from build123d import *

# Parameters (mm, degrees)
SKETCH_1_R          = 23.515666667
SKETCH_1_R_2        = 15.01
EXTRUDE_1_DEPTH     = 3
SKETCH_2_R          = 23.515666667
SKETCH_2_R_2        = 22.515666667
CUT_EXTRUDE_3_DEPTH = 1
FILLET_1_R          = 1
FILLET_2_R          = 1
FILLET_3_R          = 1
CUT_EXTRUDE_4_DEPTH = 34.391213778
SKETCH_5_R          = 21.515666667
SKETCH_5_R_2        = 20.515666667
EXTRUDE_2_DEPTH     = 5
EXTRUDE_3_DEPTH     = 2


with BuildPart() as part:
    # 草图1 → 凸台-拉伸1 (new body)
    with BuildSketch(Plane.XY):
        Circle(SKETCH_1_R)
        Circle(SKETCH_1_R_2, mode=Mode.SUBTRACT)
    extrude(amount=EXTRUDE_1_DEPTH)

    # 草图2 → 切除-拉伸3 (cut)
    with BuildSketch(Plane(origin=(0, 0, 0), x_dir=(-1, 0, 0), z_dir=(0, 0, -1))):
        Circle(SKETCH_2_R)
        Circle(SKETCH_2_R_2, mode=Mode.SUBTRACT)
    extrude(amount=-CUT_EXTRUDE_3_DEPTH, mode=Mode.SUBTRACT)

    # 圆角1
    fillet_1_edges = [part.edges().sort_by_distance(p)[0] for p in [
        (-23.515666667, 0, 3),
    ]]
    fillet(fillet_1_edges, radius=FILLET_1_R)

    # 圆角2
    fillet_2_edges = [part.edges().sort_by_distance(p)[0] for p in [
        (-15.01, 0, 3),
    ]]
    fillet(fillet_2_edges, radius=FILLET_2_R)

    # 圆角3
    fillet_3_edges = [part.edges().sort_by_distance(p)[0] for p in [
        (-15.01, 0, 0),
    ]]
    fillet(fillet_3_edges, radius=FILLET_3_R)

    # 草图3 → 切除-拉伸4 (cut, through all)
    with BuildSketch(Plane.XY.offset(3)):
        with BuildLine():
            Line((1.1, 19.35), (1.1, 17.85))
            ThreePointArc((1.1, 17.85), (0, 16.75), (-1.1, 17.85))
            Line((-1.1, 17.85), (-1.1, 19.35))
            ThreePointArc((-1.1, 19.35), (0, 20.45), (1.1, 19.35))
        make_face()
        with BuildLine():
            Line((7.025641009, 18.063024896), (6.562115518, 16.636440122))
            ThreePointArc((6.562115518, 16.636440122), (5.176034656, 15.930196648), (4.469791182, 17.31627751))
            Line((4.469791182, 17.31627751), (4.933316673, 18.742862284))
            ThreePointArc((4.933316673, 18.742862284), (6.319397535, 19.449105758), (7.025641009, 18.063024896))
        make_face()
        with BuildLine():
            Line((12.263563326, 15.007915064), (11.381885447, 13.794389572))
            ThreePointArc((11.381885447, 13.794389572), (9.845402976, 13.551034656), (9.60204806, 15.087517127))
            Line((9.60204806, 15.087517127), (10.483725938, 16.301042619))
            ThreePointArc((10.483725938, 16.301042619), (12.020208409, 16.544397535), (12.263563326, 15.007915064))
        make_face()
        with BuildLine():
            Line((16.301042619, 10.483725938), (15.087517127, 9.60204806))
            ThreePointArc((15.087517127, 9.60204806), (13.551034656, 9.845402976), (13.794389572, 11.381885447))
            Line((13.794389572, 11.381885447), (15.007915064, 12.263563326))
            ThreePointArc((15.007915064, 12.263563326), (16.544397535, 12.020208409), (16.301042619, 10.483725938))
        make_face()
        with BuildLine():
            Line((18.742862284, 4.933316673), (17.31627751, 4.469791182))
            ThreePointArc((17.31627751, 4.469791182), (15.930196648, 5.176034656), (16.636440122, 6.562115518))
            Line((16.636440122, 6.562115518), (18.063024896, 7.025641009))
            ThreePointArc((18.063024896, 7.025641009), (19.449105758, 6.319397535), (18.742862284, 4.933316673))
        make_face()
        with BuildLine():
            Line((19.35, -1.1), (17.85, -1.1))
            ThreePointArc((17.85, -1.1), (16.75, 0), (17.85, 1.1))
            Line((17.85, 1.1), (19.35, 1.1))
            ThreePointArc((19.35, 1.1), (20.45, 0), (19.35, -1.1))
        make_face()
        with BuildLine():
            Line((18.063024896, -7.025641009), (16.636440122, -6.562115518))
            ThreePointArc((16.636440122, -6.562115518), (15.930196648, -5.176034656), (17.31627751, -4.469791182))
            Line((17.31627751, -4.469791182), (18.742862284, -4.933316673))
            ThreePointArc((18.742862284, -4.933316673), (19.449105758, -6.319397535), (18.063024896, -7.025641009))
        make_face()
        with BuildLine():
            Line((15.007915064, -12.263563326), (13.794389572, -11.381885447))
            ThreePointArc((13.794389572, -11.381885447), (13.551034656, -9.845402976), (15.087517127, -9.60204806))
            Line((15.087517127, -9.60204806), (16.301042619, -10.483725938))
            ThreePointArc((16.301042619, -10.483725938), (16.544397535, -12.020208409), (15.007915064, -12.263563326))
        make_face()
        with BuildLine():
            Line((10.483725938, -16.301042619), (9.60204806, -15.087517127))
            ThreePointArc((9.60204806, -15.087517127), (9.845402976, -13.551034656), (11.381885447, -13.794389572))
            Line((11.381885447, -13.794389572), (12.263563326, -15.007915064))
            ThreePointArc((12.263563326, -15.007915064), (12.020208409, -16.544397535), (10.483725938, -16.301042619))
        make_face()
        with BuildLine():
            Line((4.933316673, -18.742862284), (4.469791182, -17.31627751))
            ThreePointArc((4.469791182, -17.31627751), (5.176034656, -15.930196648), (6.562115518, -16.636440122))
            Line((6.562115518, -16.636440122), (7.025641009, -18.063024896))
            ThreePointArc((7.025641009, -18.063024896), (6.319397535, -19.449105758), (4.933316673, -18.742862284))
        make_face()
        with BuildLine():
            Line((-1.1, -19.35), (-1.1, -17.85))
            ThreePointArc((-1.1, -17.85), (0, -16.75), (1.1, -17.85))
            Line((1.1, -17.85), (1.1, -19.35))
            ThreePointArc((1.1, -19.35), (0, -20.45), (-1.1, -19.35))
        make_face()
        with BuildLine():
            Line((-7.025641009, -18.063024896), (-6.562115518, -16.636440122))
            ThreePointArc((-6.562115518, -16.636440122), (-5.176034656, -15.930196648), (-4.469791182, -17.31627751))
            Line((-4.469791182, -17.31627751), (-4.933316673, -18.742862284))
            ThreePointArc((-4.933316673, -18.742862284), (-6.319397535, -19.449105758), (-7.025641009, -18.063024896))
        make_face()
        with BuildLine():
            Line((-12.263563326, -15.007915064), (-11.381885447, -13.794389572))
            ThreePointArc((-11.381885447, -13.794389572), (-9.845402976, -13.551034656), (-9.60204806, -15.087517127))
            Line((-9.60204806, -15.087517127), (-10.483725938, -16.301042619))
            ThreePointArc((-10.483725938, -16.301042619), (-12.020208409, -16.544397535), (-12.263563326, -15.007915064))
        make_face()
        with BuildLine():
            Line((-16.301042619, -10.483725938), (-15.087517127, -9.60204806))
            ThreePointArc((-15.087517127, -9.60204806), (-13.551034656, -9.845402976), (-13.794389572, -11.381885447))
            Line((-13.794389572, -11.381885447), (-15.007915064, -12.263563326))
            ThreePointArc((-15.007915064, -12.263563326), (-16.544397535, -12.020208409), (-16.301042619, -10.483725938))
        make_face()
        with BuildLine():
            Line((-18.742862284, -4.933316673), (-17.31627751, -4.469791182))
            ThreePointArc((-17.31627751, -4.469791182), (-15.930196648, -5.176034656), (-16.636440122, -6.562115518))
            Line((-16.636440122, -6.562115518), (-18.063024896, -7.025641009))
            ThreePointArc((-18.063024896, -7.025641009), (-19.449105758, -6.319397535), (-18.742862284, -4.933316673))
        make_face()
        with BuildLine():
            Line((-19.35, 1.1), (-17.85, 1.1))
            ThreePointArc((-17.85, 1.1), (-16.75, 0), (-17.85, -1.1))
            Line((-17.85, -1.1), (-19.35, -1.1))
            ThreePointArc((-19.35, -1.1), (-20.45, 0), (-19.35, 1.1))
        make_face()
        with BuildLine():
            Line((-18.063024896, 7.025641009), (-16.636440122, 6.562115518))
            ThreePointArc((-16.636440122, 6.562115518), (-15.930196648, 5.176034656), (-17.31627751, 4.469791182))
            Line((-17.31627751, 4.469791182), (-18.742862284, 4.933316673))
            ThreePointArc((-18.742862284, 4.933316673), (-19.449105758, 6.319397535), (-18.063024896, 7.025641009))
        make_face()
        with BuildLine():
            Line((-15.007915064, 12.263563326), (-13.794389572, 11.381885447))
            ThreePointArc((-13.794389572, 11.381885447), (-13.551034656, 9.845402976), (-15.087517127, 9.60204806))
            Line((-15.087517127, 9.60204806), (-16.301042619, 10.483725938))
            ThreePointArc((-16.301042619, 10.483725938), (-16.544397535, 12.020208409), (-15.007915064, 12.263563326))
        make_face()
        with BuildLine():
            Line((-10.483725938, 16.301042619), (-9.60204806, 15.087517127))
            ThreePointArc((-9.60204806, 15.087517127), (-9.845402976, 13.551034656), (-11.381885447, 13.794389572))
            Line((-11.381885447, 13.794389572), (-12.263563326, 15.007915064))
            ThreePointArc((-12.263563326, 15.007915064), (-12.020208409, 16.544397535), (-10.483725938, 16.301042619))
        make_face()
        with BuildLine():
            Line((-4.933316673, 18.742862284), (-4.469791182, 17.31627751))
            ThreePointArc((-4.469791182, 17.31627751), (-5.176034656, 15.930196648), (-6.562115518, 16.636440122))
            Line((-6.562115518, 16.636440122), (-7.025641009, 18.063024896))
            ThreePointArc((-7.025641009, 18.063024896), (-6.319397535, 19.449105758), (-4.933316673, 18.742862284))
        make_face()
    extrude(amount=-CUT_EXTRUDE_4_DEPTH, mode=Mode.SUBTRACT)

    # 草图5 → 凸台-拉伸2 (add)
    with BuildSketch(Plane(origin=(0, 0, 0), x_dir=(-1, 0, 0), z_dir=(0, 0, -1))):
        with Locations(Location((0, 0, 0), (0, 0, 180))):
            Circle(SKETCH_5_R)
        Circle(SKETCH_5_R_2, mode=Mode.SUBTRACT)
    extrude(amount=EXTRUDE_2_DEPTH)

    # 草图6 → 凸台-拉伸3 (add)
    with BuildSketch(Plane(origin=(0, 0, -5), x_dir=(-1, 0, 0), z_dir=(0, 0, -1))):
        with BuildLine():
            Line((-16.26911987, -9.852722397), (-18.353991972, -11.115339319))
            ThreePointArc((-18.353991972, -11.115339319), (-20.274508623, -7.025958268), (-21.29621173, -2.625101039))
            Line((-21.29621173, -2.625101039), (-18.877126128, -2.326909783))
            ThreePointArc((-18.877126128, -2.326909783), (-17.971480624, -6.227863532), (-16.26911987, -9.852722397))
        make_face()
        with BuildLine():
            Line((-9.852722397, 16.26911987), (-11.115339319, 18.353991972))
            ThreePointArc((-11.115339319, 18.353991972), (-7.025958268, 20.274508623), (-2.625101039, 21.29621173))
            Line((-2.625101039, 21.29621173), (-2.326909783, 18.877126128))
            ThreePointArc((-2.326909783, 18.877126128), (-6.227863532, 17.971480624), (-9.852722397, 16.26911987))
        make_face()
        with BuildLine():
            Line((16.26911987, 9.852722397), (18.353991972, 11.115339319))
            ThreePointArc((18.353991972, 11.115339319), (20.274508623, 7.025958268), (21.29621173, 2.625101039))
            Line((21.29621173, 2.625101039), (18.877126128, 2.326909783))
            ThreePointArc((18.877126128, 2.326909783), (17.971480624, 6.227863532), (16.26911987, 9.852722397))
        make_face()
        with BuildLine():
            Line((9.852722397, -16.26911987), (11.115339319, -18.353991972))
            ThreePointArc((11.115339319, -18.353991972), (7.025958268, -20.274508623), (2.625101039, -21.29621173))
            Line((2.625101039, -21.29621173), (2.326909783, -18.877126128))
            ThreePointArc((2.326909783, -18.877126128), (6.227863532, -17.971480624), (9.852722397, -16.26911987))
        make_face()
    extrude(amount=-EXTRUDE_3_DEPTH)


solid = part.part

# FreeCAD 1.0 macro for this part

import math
import FreeCAD as App
import Part
import Sketcher

V = App.Vector
Q = App.Units.Quantity


def edges_at(feature, points):
    """Names of the edges that pass closest to the given points."""
    edges = feature.Shape.Edges
    near = lambda p: min(range(len(edges)), key=lambda i: edges[i].distToShape(Part.Vertex(*p))[0])
    return sorted({f"Edge{near(p) + 1}" for p in points})

doc = App.newDocument("Part")
params = doc.addObject("Spreadsheet::Sheet", "Params")
for row, (alias, value) in enumerate([
    ("sketch1_diameter", "30.02 mm"),
    ("pad1_length", "3 mm"),
    ("pocket1_length", "1 mm"),
    ("fillet_radius", "1 mm"),
    ("fillet2_radius", "1 mm"),
    ("fillet3_radius", "1 mm"),
    ("sketch3_radius", "1.1 mm"),
    ("sketch3_width", "1.5 mm"),
    ("sketch3_length", "1.5 mm"),
    ("pad2_length", "5 mm"),
    ("sketch5_radius", "19.02 mm"),
    ("pad3_length", "2 mm"),
], start=1):
    params.set(f"A{row}", alias)
    params.set(f"B{row}", "=" + value)
    params.setAlias(f"B{row}", alias)

body = doc.addObject("PartDesign::Body", "Body")

# Sketch on XY plane
sketch1 = body.newObject("Sketcher::SketchObject", "Sketch")
sketch1.AttachmentSupport = (doc.getObject("XY_Plane"), [""])
sketch1.MapMode = "FlatFace"
sketch1.addGeometry(Part.Circle(V(0, 0, 0), V(0, 0, 1), 23.515667), False)
sketch1.addGeometry(Part.Circle(V(0, 0, 0), V(0, 0, 1), 15.01), False)
sketch1.addConstraint(Sketcher.Constraint("Coincident", 0, 3, -1, 1))
sketch1.addConstraint(Sketcher.Constraint("Coincident", 1, 3, -1, 1))
sketch1.addConstraint(Sketcher.Constraint("Diameter", 1, 30.02))
sketch1.addConstraint(Sketcher.Constraint("Diameter", 0, 47.031333))
sketch1.setExpression("Constraints[2]", "Params.sketch1_diameter")
pad1 = body.newObject("PartDesign::Pad", "Pad")
pad1.Profile = sketch1
pad1.setExpression("Length", "Params.pad1_length")

# Sketch on XY plane
sketch2 = body.newObject("Sketcher::SketchObject", "Sketch001")
sketch2.AttachmentSupport = (doc.getObject("XY_Plane"), [""])
sketch2.MapMode = "FlatFace"
sketch2.addGeometry(Part.Circle(V(0, 0, 0), V(0, 0, 1), 23.515667), False)
sketch2.addGeometry(Part.Circle(V(0, 0, 0), V(0, 0, 1), 22.515667), False)
sketch2.addConstraint(Sketcher.Constraint("Coincident", 0, 3, -1, 1))
sketch2.addConstraint(Sketcher.Constraint("Coincident", 1, 3, -1, 1))
sketch2.addConstraint(Sketcher.Constraint("Diameter", 0, 47.031333))
sketch2.addConstraint(Sketcher.Constraint("Diameter", 1, 45.031333))
pocket1 = body.newObject("PartDesign::Pocket", "Pocket")
pocket1.Profile = sketch2
pocket1.setExpression("Length", "Params.pocket1_length")
pocket1.Reversed = True
doc.recompute()

fillet = body.newObject("PartDesign::Fillet", "Fillet")
fillet.Base = (pocket1, edges_at(pocket1, [(-23.516, 0, 3)]))
fillet.setExpression("Radius", "Params.fillet_radius")
doc.recompute()

fillet2 = body.newObject("PartDesign::Fillet", "Fillet001")
fillet2.Base = (fillet, edges_at(fillet, [(-15.01, 0, 3)]))
fillet2.setExpression("Radius", "Params.fillet2_radius")
doc.recompute()

fillet3 = body.newObject("PartDesign::Fillet", "Fillet002")
fillet3.Base = (fillet2, edges_at(fillet2, [(-15.01, 0, 0)]))
fillet3.setExpression("Radius", "Params.fillet3_radius")

# Sketch on XY plane
sketch3 = body.newObject("Sketcher::SketchObject", "Sketch002")
sketch3.AttachmentSupport = (doc.getObject("XY_Plane"), [""])
sketch3.MapMode = "FlatFace"
sketch3.AttachmentOffset = App.Placement(V(0, 0, 3), App.Rotation())
sketch3.addGeometry(Part.LineSegment(V(1.1, 17.85, 0), V(1.1, 19.35, 0)), False)
sketch3.addGeometry(Part.ArcOfCircle(Part.Circle(V(0, 19.35, 0), V(0, 0, 1), 1.1), math.radians(0), math.radians(180)), False)
sketch3.addGeometry(Part.LineSegment(V(-1.1, 19.35, 0), V(-1.1, 17.85, 0)), False)
sketch3.addGeometry(Part.ArcOfCircle(Part.Circle(V(0, 17.85, 0), V(0, 0, 1), 1.1), math.radians(180), math.radians(360)), False)
sketch3.addGeometry(Part.LineSegment(V(6.562116, 16.63644, 0), V(7.025641, 18.063025, 0)), False)
sketch3.addGeometry(Part.ArcOfCircle(Part.Circle(V(5.979479, 18.402944, 0), V(0, 0, 1), 1.1), math.radians(-18), math.radians(162)), False)
sketch3.addGeometry(Part.LineSegment(V(4.933317, 18.742862, 0), V(4.469791, 17.316278, 0)), False)
sketch3.addGeometry(Part.ArcOfCircle(Part.Circle(V(5.515953, 16.976359, 0), V(0, 0, 1), 1.1), math.radians(162), math.radians(342)), False)
sketch3.addGeometry(Part.LineSegment(V(11.381885, 13.79439, 0), V(12.263563, 15.007915, 0)), False)
sketch3.addGeometry(Part.ArcOfCircle(Part.Circle(V(11.373645, 15.654479, 0), V(0, 0, 1), 1.1), math.radians(-36), math.radians(144)), False)
sketch3.addGeometry(Part.LineSegment(V(10.483726, 16.301043, 0), V(9.602048, 15.087517, 0)), False)
sketch3.addGeometry(Part.ArcOfCircle(Part.Circle(V(10.491967, 14.440953, 0), V(0, 0, 1), 1.1), math.radians(144), math.radians(324)), False)
sketch3.addGeometry(Part.LineSegment(V(15.087517, 9.602048, 0), V(16.301043, 10.483726, 0)), False)
sketch3.addGeometry(Part.ArcOfCircle(Part.Circle(V(15.654479, 11.373645, 0), V(0, 0, 1), 1.1), math.radians(-54), math.radians(126)), False)
sketch3.addGeometry(Part.LineSegment(V(15.007915, 12.263563, 0), V(13.79439, 11.381885, 0)), False)
sketch3.addGeometry(Part.ArcOfCircle(Part.Circle(V(14.440953, 10.491967, 0), V(0, 0, 1), 1.1), math.radians(126), math.radians(306)), False)
sketch3.addGeometry(Part.LineSegment(V(17.316278, 4.469791, 0), V(18.742862, 4.933317, 0)), False)
sketch3.addGeometry(Part.ArcOfCircle(Part.Circle(V(18.402944, 5.979479, 0), V(0, 0, 1), 1.1), math.radians(-72), math.radians(108)), False)
sketch3.addGeometry(Part.LineSegment(V(18.063025, 7.025641, 0), V(16.63644, 6.562116, 0)), False)
sketch3.addGeometry(Part.ArcOfCircle(Part.Circle(V(16.976359, 5.515953, 0), V(0, 0, 1), 1.1), math.radians(108), math.radians(288)), False)
sketch3.addGeometry(Part.LineSegment(V(17.85, -1.1, 0), V(19.35, -1.1, 0)), False)
sketch3.addGeometry(Part.ArcOfCircle(Part.Circle(V(19.35, 0, 0), V(0, 0, 1), 1.1), math.radians(-90), math.radians(90)), False)
sketch3.addGeometry(Part.LineSegment(V(19.35, 1.1, 0), V(17.85, 1.1, 0)), False)
sketch3.addGeometry(Part.ArcOfCircle(Part.Circle(V(17.85, 0, 0), V(0, 0, 1), 1.1), math.radians(90), math.radians(270)), False)
sketch3.addGeometry(Part.LineSegment(V(16.63644, -6.562116, 0), V(18.063025, -7.025641, 0)), False)
sketch3.addGeometry(Part.ArcOfCircle(Part.Circle(V(18.402944, -5.979479, 0), V(0, 0, 1), 1.1), math.radians(-108), math.radians(72)), False)
sketch3.addGeometry(Part.LineSegment(V(18.742862, -4.933317, 0), V(17.316278, -4.469791, 0)), False)
sketch3.addGeometry(Part.ArcOfCircle(Part.Circle(V(16.976359, -5.515953, 0), V(0, 0, 1), 1.1), math.radians(72), math.radians(252)), False)
sketch3.addGeometry(Part.LineSegment(V(13.79439, -11.381885, 0), V(15.007915, -12.263563, 0)), False)
sketch3.addGeometry(Part.ArcOfCircle(Part.Circle(V(15.654479, -11.373645, 0), V(0, 0, 1), 1.1), math.radians(-126), math.radians(54)), False)
sketch3.addGeometry(Part.LineSegment(V(16.301043, -10.483726, 0), V(15.087517, -9.602048, 0)), False)
sketch3.addGeometry(Part.ArcOfCircle(Part.Circle(V(14.440953, -10.491967, 0), V(0, 0, 1), 1.1), math.radians(54), math.radians(234)), False)
sketch3.addGeometry(Part.LineSegment(V(9.602048, -15.087517, 0), V(10.483726, -16.301043, 0)), False)
sketch3.addGeometry(Part.ArcOfCircle(Part.Circle(V(11.373645, -15.654479, 0), V(0, 0, 1), 1.1), math.radians(-144), math.radians(36)), False)
sketch3.addGeometry(Part.LineSegment(V(12.263563, -15.007915, 0), V(11.381885, -13.79439, 0)), False)
sketch3.addGeometry(Part.ArcOfCircle(Part.Circle(V(10.491967, -14.440953, 0), V(0, 0, 1), 1.1), math.radians(36), math.radians(216)), False)
sketch3.addGeometry(Part.LineSegment(V(4.469791, -17.316278, 0), V(4.933317, -18.742862, 0)), False)
sketch3.addGeometry(Part.ArcOfCircle(Part.Circle(V(5.979479, -18.402944, 0), V(0, 0, 1), 1.1), math.radians(-162), math.radians(18)), False)
sketch3.addGeometry(Part.LineSegment(V(7.025641, -18.063025, 0), V(6.562116, -16.63644, 0)), False)
sketch3.addGeometry(Part.ArcOfCircle(Part.Circle(V(5.515953, -16.976359, 0), V(0, 0, 1), 1.1), math.radians(18), math.radians(198)), False)
sketch3.addGeometry(Part.LineSegment(V(-1.1, -17.85, 0), V(-1.1, -19.35, 0)), False)
sketch3.addGeometry(Part.ArcOfCircle(Part.Circle(V(0, -19.35, 0), V(0, 0, 1), 1.1), math.radians(180), math.radians(360)), False)
sketch3.addGeometry(Part.LineSegment(V(1.1, -19.35, 0), V(1.1, -17.85, 0)), False)
sketch3.addGeometry(Part.ArcOfCircle(Part.Circle(V(0, -17.85, 0), V(0, 0, 1), 1.1), math.radians(0), math.radians(180)), False)
sketch3.addGeometry(Part.LineSegment(V(-6.562116, -16.63644, 0), V(-7.025641, -18.063025, 0)), False)
sketch3.addGeometry(Part.ArcOfCircle(Part.Circle(V(-5.979479, -18.402944, 0), V(0, 0, 1), 1.1), math.radians(162), math.radians(342)), False)
sketch3.addGeometry(Part.LineSegment(V(-4.933317, -18.742862, 0), V(-4.469791, -17.316278, 0)), False)
sketch3.addGeometry(Part.ArcOfCircle(Part.Circle(V(-5.515953, -16.976359, 0), V(0, 0, 1), 1.1), math.radians(-18), math.radians(162)), False)
sketch3.addGeometry(Part.LineSegment(V(-11.381885, -13.79439, 0), V(-12.263563, -15.007915, 0)), False)
sketch3.addGeometry(Part.ArcOfCircle(Part.Circle(V(-11.373645, -15.654479, 0), V(0, 0, 1), 1.1), math.radians(144), math.radians(324)), False)
sketch3.addGeometry(Part.LineSegment(V(-10.483726, -16.301043, 0), V(-9.602048, -15.087517, 0)), False)
sketch3.addGeometry(Part.ArcOfCircle(Part.Circle(V(-10.491967, -14.440953, 0), V(0, 0, 1), 1.1), math.radians(-36), math.radians(144)), False)
sketch3.addGeometry(Part.LineSegment(V(-15.087517, -9.602048, 0), V(-16.301043, -10.483726, 0)), False)
sketch3.addGeometry(Part.ArcOfCircle(Part.Circle(V(-15.654479, -11.373645, 0), V(0, 0, 1), 1.1), math.radians(126), math.radians(306)), False)
sketch3.addGeometry(Part.LineSegment(V(-15.007915, -12.263563, 0), V(-13.79439, -11.381885, 0)), False)
sketch3.addGeometry(Part.ArcOfCircle(Part.Circle(V(-14.440953, -10.491967, 0), V(0, 0, 1), 1.1), math.radians(-54), math.radians(126)), False)
sketch3.addGeometry(Part.LineSegment(V(-17.316278, -4.469791, 0), V(-18.742862, -4.933317, 0)), False)
sketch3.addGeometry(Part.ArcOfCircle(Part.Circle(V(-18.402944, -5.979479, 0), V(0, 0, 1), 1.1), math.radians(108), math.radians(288)), False)
sketch3.addGeometry(Part.LineSegment(V(-18.063025, -7.025641, 0), V(-16.63644, -6.562116, 0)), False)
sketch3.addGeometry(Part.ArcOfCircle(Part.Circle(V(-16.976359, -5.515953, 0), V(0, 0, 1), 1.1), math.radians(-72), math.radians(108)), False)
sketch3.addGeometry(Part.LineSegment(V(-17.85, 1.1, 0), V(-19.35, 1.1, 0)), False)
sketch3.addGeometry(Part.ArcOfCircle(Part.Circle(V(-19.35, 0, 0), V(0, 0, 1), 1.1), math.radians(90), math.radians(270)), False)
sketch3.addGeometry(Part.LineSegment(V(-19.35, -1.1, 0), V(-17.85, -1.1, 0)), False)
sketch3.addGeometry(Part.ArcOfCircle(Part.Circle(V(-17.85, 0, 0), V(0, 0, 1), 1.1), math.radians(-90), math.radians(90)), False)
sketch3.addGeometry(Part.LineSegment(V(-16.63644, 6.562116, 0), V(-18.063025, 7.025641, 0)), False)
sketch3.addGeometry(Part.ArcOfCircle(Part.Circle(V(-18.402944, 5.979479, 0), V(0, 0, 1), 1.1), math.radians(72), math.radians(252)), False)
sketch3.addGeometry(Part.LineSegment(V(-18.742862, 4.933317, 0), V(-17.316278, 4.469791, 0)), False)
sketch3.addGeometry(Part.ArcOfCircle(Part.Circle(V(-16.976359, 5.515953, 0), V(0, 0, 1), 1.1), math.radians(-108), math.radians(72)), False)
sketch3.addGeometry(Part.LineSegment(V(-13.79439, 11.381885, 0), V(-15.007915, 12.263563, 0)), False)
sketch3.addGeometry(Part.ArcOfCircle(Part.Circle(V(-15.654479, 11.373645, 0), V(0, 0, 1), 1.1), math.radians(54), math.radians(234)), False)
sketch3.addGeometry(Part.LineSegment(V(-16.301043, 10.483726, 0), V(-15.087517, 9.602048, 0)), False)
sketch3.addGeometry(Part.ArcOfCircle(Part.Circle(V(-14.440953, 10.491967, 0), V(0, 0, 1), 1.1), math.radians(-126), math.radians(54)), False)
sketch3.addGeometry(Part.LineSegment(V(-9.602048, 15.087517, 0), V(-10.483726, 16.301043, 0)), False)
sketch3.addGeometry(Part.ArcOfCircle(Part.Circle(V(-11.373645, 15.654479, 0), V(0, 0, 1), 1.1), math.radians(36), math.radians(216)), False)
sketch3.addGeometry(Part.LineSegment(V(-12.263563, 15.007915, 0), V(-11.381885, 13.79439, 0)), False)
sketch3.addGeometry(Part.ArcOfCircle(Part.Circle(V(-10.491967, 14.440953, 0), V(0, 0, 1), 1.1), math.radians(-144), math.radians(36)), False)
sketch3.addGeometry(Part.LineSegment(V(-4.469791, 17.316278, 0), V(-4.933317, 18.742862, 0)), False)
sketch3.addGeometry(Part.ArcOfCircle(Part.Circle(V(-5.979479, 18.402944, 0), V(0, 0, 1), 1.1), math.radians(18), math.radians(198)), False)
sketch3.addGeometry(Part.LineSegment(V(-7.025641, 18.063025, 0), V(-6.562116, 16.63644, 0)), False)
sketch3.addGeometry(Part.ArcOfCircle(Part.Circle(V(-5.515953, 16.976359, 0), V(0, 0, 1), 1.1), math.radians(-162), math.radians(18)), False)
sketch3.addConstraint(Sketcher.Constraint("Tangent", 0, 2, 1, 1))
sketch3.addConstraint(Sketcher.Constraint("Tangent", 1, 2, 2, 1))
sketch3.addConstraint(Sketcher.Constraint("Tangent", 2, 2, 3, 1))
sketch3.addConstraint(Sketcher.Constraint("Tangent", 3, 2, 0, 1))
sketch3.addConstraint(Sketcher.Constraint("Tangent", 4, 2, 5, 1))
sketch3.addConstraint(Sketcher.Constraint("Tangent", 5, 2, 6, 1))
sketch3.addConstraint(Sketcher.Constraint("Tangent", 6, 2, 7, 1))
sketch3.addConstraint(Sketcher.Constraint("Tangent", 7, 2, 4, 1))
sketch3.addConstraint(Sketcher.Constraint("Tangent", 8, 2, 9, 1))
sketch3.addConstraint(Sketcher.Constraint("Tangent", 9, 2, 10, 1))
sketch3.addConstraint(Sketcher.Constraint("Tangent", 10, 2, 11, 1))
sketch3.addConstraint(Sketcher.Constraint("Tangent", 11, 2, 8, 1))
sketch3.addConstraint(Sketcher.Constraint("Tangent", 12, 2, 13, 1))
sketch3.addConstraint(Sketcher.Constraint("Tangent", 13, 2, 14, 1))
sketch3.addConstraint(Sketcher.Constraint("Tangent", 14, 2, 15, 1))
sketch3.addConstraint(Sketcher.Constraint("Tangent", 15, 2, 12, 1))
sketch3.addConstraint(Sketcher.Constraint("Tangent", 16, 2, 17, 1))
sketch3.addConstraint(Sketcher.Constraint("Tangent", 17, 2, 18, 1))
sketch3.addConstraint(Sketcher.Constraint("Tangent", 18, 2, 19, 1))
sketch3.addConstraint(Sketcher.Constraint("Tangent", 19, 2, 16, 1))
sketch3.addConstraint(Sketcher.Constraint("Tangent", 20, 2, 21, 1))
sketch3.addConstraint(Sketcher.Constraint("Tangent", 21, 2, 22, 1))
sketch3.addConstraint(Sketcher.Constraint("Tangent", 22, 2, 23, 1))
sketch3.addConstraint(Sketcher.Constraint("Tangent", 23, 2, 20, 1))
sketch3.addConstraint(Sketcher.Constraint("Tangent", 24, 2, 25, 1))
sketch3.addConstraint(Sketcher.Constraint("Tangent", 25, 2, 26, 1))
sketch3.addConstraint(Sketcher.Constraint("Tangent", 26, 2, 27, 1))
sketch3.addConstraint(Sketcher.Constraint("Tangent", 27, 2, 24, 1))
sketch3.addConstraint(Sketcher.Constraint("Tangent", 28, 2, 29, 1))
sketch3.addConstraint(Sketcher.Constraint("Tangent", 29, 2, 30, 1))
sketch3.addConstraint(Sketcher.Constraint("Tangent", 30, 2, 31, 1))
sketch3.addConstraint(Sketcher.Constraint("Tangent", 31, 2, 28, 1))
sketch3.addConstraint(Sketcher.Constraint("Tangent", 32, 2, 33, 1))
sketch3.addConstraint(Sketcher.Constraint("Tangent", 33, 2, 34, 1))
sketch3.addConstraint(Sketcher.Constraint("Tangent", 34, 2, 35, 1))
sketch3.addConstraint(Sketcher.Constraint("Tangent", 35, 2, 32, 1))
sketch3.addConstraint(Sketcher.Constraint("Tangent", 36, 2, 37, 1))
sketch3.addConstraint(Sketcher.Constraint("Tangent", 37, 2, 38, 1))
sketch3.addConstraint(Sketcher.Constraint("Tangent", 38, 2, 39, 1))
sketch3.addConstraint(Sketcher.Constraint("Tangent", 39, 2, 36, 1))
sketch3.addConstraint(Sketcher.Constraint("Tangent", 40, 2, 41, 1))
sketch3.addConstraint(Sketcher.Constraint("Tangent", 41, 2, 42, 1))
sketch3.addConstraint(Sketcher.Constraint("Tangent", 42, 2, 43, 1))
sketch3.addConstraint(Sketcher.Constraint("Tangent", 43, 2, 40, 1))
sketch3.addConstraint(Sketcher.Constraint("Tangent", 44, 2, 45, 1))
sketch3.addConstraint(Sketcher.Constraint("Tangent", 45, 2, 46, 1))
sketch3.addConstraint(Sketcher.Constraint("Tangent", 46, 2, 47, 1))
sketch3.addConstraint(Sketcher.Constraint("Tangent", 47, 2, 44, 1))
sketch3.addConstraint(Sketcher.Constraint("Tangent", 48, 2, 49, 1))
sketch3.addConstraint(Sketcher.Constraint("Tangent", 49, 2, 50, 1))
sketch3.addConstraint(Sketcher.Constraint("Tangent", 50, 2, 51, 1))
sketch3.addConstraint(Sketcher.Constraint("Tangent", 51, 2, 48, 1))
sketch3.addConstraint(Sketcher.Constraint("Tangent", 52, 2, 53, 1))
sketch3.addConstraint(Sketcher.Constraint("Tangent", 53, 2, 54, 1))
sketch3.addConstraint(Sketcher.Constraint("Tangent", 54, 2, 55, 1))
sketch3.addConstraint(Sketcher.Constraint("Tangent", 55, 2, 52, 1))
sketch3.addConstraint(Sketcher.Constraint("Tangent", 56, 2, 57, 1))
sketch3.addConstraint(Sketcher.Constraint("Tangent", 57, 2, 58, 1))
sketch3.addConstraint(Sketcher.Constraint("Tangent", 58, 2, 59, 1))
sketch3.addConstraint(Sketcher.Constraint("Tangent", 59, 2, 56, 1))
sketch3.addConstraint(Sketcher.Constraint("Tangent", 60, 2, 61, 1))
sketch3.addConstraint(Sketcher.Constraint("Tangent", 61, 2, 62, 1))
sketch3.addConstraint(Sketcher.Constraint("Tangent", 62, 2, 63, 1))
sketch3.addConstraint(Sketcher.Constraint("Tangent", 63, 2, 60, 1))
sketch3.addConstraint(Sketcher.Constraint("Tangent", 64, 2, 65, 1))
sketch3.addConstraint(Sketcher.Constraint("Tangent", 65, 2, 66, 1))
sketch3.addConstraint(Sketcher.Constraint("Tangent", 66, 2, 67, 1))
sketch3.addConstraint(Sketcher.Constraint("Tangent", 67, 2, 64, 1))
sketch3.addConstraint(Sketcher.Constraint("Tangent", 68, 2, 69, 1))
sketch3.addConstraint(Sketcher.Constraint("Tangent", 69, 2, 70, 1))
sketch3.addConstraint(Sketcher.Constraint("Tangent", 70, 2, 71, 1))
sketch3.addConstraint(Sketcher.Constraint("Tangent", 71, 2, 68, 1))
sketch3.addConstraint(Sketcher.Constraint("Tangent", 72, 2, 73, 1))
sketch3.addConstraint(Sketcher.Constraint("Tangent", 73, 2, 74, 1))
sketch3.addConstraint(Sketcher.Constraint("Tangent", 74, 2, 75, 1))
sketch3.addConstraint(Sketcher.Constraint("Tangent", 75, 2, 72, 1))
sketch3.addConstraint(Sketcher.Constraint("Tangent", 76, 2, 77, 1))
sketch3.addConstraint(Sketcher.Constraint("Tangent", 77, 2, 78, 1))
sketch3.addConstraint(Sketcher.Constraint("Tangent", 78, 2, 79, 1))
sketch3.addConstraint(Sketcher.Constraint("Tangent", 79, 2, 76, 1))
sketch3.addConstraint(Sketcher.Constraint("Vertical", 0))
sketch3.addConstraint(Sketcher.Constraint("Vertical", 2))
sketch3.addConstraint(Sketcher.Constraint("Horizontal", 20))
sketch3.addConstraint(Sketcher.Constraint("Horizontal", 22))
sketch3.addConstraint(Sketcher.Constraint("Vertical", 40))
sketch3.addConstraint(Sketcher.Constraint("Vertical", 42))
sketch3.addConstraint(Sketcher.Constraint("Horizontal", 60))
sketch3.addConstraint(Sketcher.Constraint("Horizontal", 62))
sketch3.addConstraint(Sketcher.Constraint("Equal", 3, 5))
sketch3.addConstraint(Sketcher.Constraint("Equal", 5, 7))
sketch3.addConstraint(Sketcher.Constraint("Equal", 7, 9))
sketch3.addConstraint(Sketcher.Constraint("Equal", 9, 11))
sketch3.addConstraint(Sketcher.Constraint("Equal", 11, 13))
sketch3.addConstraint(Sketcher.Constraint("Equal", 13, 15))
sketch3.addConstraint(Sketcher.Constraint("Equal", 15, 17))
sketch3.addConstraint(Sketcher.Constraint("Equal", 17, 19))
sketch3.addConstraint(Sketcher.Constraint("Equal", 19, 21))
sketch3.addConstraint(Sketcher.Constraint("Equal", 23, 25))
sketch3.addConstraint(Sketcher.Constraint("Equal", 25, 27))
sketch3.addConstraint(Sketcher.Constraint("Equal", 27, 29))
sketch3.addConstraint(Sketcher.Constraint("Equal", 29, 31))
sketch3.addConstraint(Sketcher.Constraint("Equal", 31, 33))
sketch3.addConstraint(Sketcher.Constraint("Equal", 33, 35))
sketch3.addConstraint(Sketcher.Constraint("Equal", 35, 37))
sketch3.addConstraint(Sketcher.Constraint("Equal", 37, 39))
sketch3.addConstraint(Sketcher.Constraint("Equal", 39, 41))
sketch3.addConstraint(Sketcher.Constraint("Equal", 43, 45))
sketch3.addConstraint(Sketcher.Constraint("Equal", 45, 47))
sketch3.addConstraint(Sketcher.Constraint("Equal", 47, 49))
sketch3.addConstraint(Sketcher.Constraint("Equal", 49, 51))
sketch3.addConstraint(Sketcher.Constraint("Equal", 51, 53))
sketch3.addConstraint(Sketcher.Constraint("Equal", 53, 55))
sketch3.addConstraint(Sketcher.Constraint("Equal", 55, 57))
sketch3.addConstraint(Sketcher.Constraint("Equal", 57, 59))
sketch3.addConstraint(Sketcher.Constraint("Equal", 59, 61))
sketch3.addConstraint(Sketcher.Constraint("Equal", 63, 65))
sketch3.addConstraint(Sketcher.Constraint("Equal", 65, 67))
sketch3.addConstraint(Sketcher.Constraint("Equal", 67, 69))
sketch3.addConstraint(Sketcher.Constraint("Equal", 69, 71))
sketch3.addConstraint(Sketcher.Constraint("Equal", 71, 73))
sketch3.addConstraint(Sketcher.Constraint("Equal", 73, 75))
sketch3.addConstraint(Sketcher.Constraint("Equal", 75, 77))
sketch3.addConstraint(Sketcher.Constraint("Equal", 77, 79))
sketch3.addConstraint(Sketcher.Constraint("Symmetric", 1, 3, 41, 3, -1, 1))
sketch3.addConstraint(Sketcher.Constraint("Symmetric", 5, 3, 45, 3, -1, 1))
sketch3.addConstraint(Sketcher.Constraint("Symmetric", 7, 3, 47, 3, -1, 1))
sketch3.addConstraint(Sketcher.Constraint("Symmetric", 9, 3, 49, 3, -1, 1))
sketch3.addConstraint(Sketcher.Constraint("Symmetric", 11, 3, 51, 3, -1, 1))
sketch3.addConstraint(Sketcher.Constraint("Symmetric", 13, 3, 53, 3, -1, 1))
sketch3.addConstraint(Sketcher.Constraint("Symmetric", 15, 3, 55, 3, -1, 1))
sketch3.addConstraint(Sketcher.Constraint("Symmetric", 17, 3, 57, 3, -1, 1))
sketch3.addConstraint(Sketcher.Constraint("Symmetric", 19, 3, 59, 3, -1, 1))
sketch3.addConstraint(Sketcher.Constraint("Symmetric", 21, 3, 61, 3, -1, 1))
sketch3.addConstraint(Sketcher.Constraint("Symmetric", 25, 3, 65, 3, -1, 1))
sketch3.addConstraint(Sketcher.Constraint("Symmetric", 27, 3, 67, 3, -1, 1))
sketch3.addConstraint(Sketcher.Constraint("Symmetric", 29, 3, 69, 3, -1, 1))
sketch3.addConstraint(Sketcher.Constraint("Symmetric", 31, 3, 71, 3, -1, 1))
sketch3.addConstraint(Sketcher.Constraint("Symmetric", 33, 3, 73, 3, -1, 1))
sketch3.addConstraint(Sketcher.Constraint("Symmetric", 35, 3, 75, 3, -1, 1))
sketch3.addConstraint(Sketcher.Constraint("Symmetric", 37, 3, 77, 3, -1, 1))
sketch3.addConstraint(Sketcher.Constraint("Symmetric", 39, 3, 79, 3, -1, 1))
sketch3.addConstraint(Sketcher.Constraint("Symmetric", 37, 3, 45, 3, -2))
sketch3.addConstraint(Sketcher.Constraint("Symmetric", 39, 3, 47, 3, -2))
sketch3.addConstraint(Sketcher.Constraint("Symmetric", 33, 3, 49, 3, -2))
sketch3.addConstraint(Sketcher.Constraint("Symmetric", 35, 3, 51, 3, -2))
sketch3.addConstraint(Sketcher.Constraint("Symmetric", 29, 3, 53, 3, -2))
sketch3.addConstraint(Sketcher.Constraint("Symmetric", 31, 3, 55, 3, -2))
sketch3.addConstraint(Sketcher.Constraint("Symmetric", 25, 3, 57, 3, -2))
sketch3.addConstraint(Sketcher.Constraint("Symmetric", 27, 3, 59, 3, -2))
sketch3.addConstraint(Sketcher.Constraint("Symmetric", 23, 3, 63, 3, -2))
sketch3.addConstraint(Sketcher.Constraint("Symmetric", 3, 3, 43, 3, -1))
sketch3.addConstraint(Sketcher.Constraint("Perpendicular", 6, 24))
sketch3.addConstraint(Sketcher.Constraint("Perpendicular", 10, 28))
sketch3.addConstraint(Sketcher.Constraint("Equal", 62, 0))
sketch3.addConstraint(Sketcher.Constraint("Equal", 6, 8))
sketch3.addConstraint(Sketcher.Constraint("Equal", 10, 12))
sketch3.addConstraint(Sketcher.Constraint("Equal", 14, 16))
sketch3.addConstraint(Sketcher.Constraint("Radius", 1, 1.1))
sketch3.addConstraint(Sketcher.Constraint("Angle", 4, Q("72 deg")))
sketch3.addConstraint(Sketcher.Constraint("Angle", 8, Q("54 deg")))
sketch3.addConstraint(Sketcher.Constraint("DistanceX", 20, 1, 20, 2, 1.5))
sketch3.addConstraint(Sketcher.Constraint("Distance", 4, 1.5))
sketch3.addConstraint(Sketcher.Constraint("DistanceY", -1, 1, 1, 3, 19.35))
sketch3.addConstraint(Sketcher.Constraint("DistanceX", -1, 1, 21, 3, 19.35))
sketch3.addConstraint(Sketcher.Constraint("DistanceX", -1, 1, 5, 3, 5.979479))
sketch3.addConstraint(Sketcher.Constraint("DistanceY", -1, 1, 7, 3, 16.976359))
sketch3.addConstraint(Sketcher.Constraint("DistanceY", -1, 1, 9, 3, 15.654479))
sketch3.addConstraint(Sketcher.Constraint("DistanceX", -1, 1, 13, 3, 15.654479))
sketch3.addConstraint(Sketcher.Constraint("DistanceY", -1, 1, 17, 3, 5.979479))
sketch3.addConstraint(Sketcher.Constraint("DistanceX", -1, 1, 19, 3, 16.976359))
sketch3.addConstraint(Sketcher.Constraint("DistanceX", -1, 1, 10, 2, 9.602048))
sketch3.addConstraint(Sketcher.Constraint("DistanceY", -1, 1, 15, 2, 9.602048))
sketch3.setExpression("Constraints[157]", "Params.sketch3_radius")
sketch3.setExpression("Constraints[160]", "Params.sketch3_width")
sketch3.setExpression("Constraints[161]", "Params.sketch3_length")
pocket2 = body.newObject("PartDesign::Pocket", "Pocket001")
pocket2.Profile = sketch3
pocket2.Type = "ThroughAll"

# Sketch on XY plane
sketch4 = body.newObject("Sketcher::SketchObject", "Sketch003")
sketch4.AttachmentSupport = (doc.getObject("XY_Plane"), [""])
sketch4.MapMode = "FlatFace"
sketch4.addGeometry(Part.Circle(V(0, 0, 0), V(0, 0, 1), 21.515667), False)
sketch4.addGeometry(Part.Circle(V(0, 0, 0), V(0, 0, 1), 20.515667), False)
sketch4.addConstraint(Sketcher.Constraint("Coincident", 0, 3, -1, 1))
sketch4.addConstraint(Sketcher.Constraint("Coincident", 1, 3, -1, 1))
sketch4.addConstraint(Sketcher.Constraint("Diameter", 0, 43.031333))
sketch4.addConstraint(Sketcher.Constraint("Diameter", 1, 41.031333))
pad2 = body.newObject("PartDesign::Pad", "Pad001")
pad2.Profile = sketch4
pad2.setExpression("Length", "Params.pad2_length")
pad2.Reversed = True

# Sketch on XY plane
sketch5 = body.newObject("Sketcher::SketchObject", "Sketch004")
sketch5.AttachmentSupport = (doc.getObject("XY_Plane"), [""])
sketch5.MapMode = "FlatFace"
sketch5.AttachmentOffset = App.Placement(V(0, 0, -5), App.Rotation())
sketch5.addGeometry(Part.LineSegment(V(18.353992, -11.115339, 0), V(16.26912, -9.852722, 0)), False)
sketch5.addGeometry(Part.ArcOfCircle(Part.Circle(V(0, 0, 0), V(0, 0, 1), 19.02), math.radians(-31.199467), math.radians(-7.027179)), False)
sketch5.addGeometry(Part.LineSegment(V(18.877126, -2.32691, 0), V(21.296212, -2.625101, 0)), False)
sketch5.addGeometry(Part.ArcOfCircle(Part.Circle(V(0, 0, 0), V(0, 0, 1), 21.457395), math.radians(-31.199467), math.radians(-7.027179)), False)
sketch5.addGeometry(Part.LineSegment(V(11.115339, 18.353992, 0), V(9.852722, 16.26912, 0)), False)
sketch5.addGeometry(Part.ArcOfCircle(Part.Circle(V(0, 0, 0), V(0, 0, 1), 19.02), math.radians(58.800533), math.radians(82.972821)), False)
sketch5.addGeometry(Part.LineSegment(V(2.32691, 18.877126, 0), V(2.625101, 21.296212, 0)), False)
sketch5.addGeometry(Part.ArcOfCircle(Part.Circle(V(0, 0, 0), V(0, 0, 1), 21.457395), math.radians(58.800533), math.radians(82.972821)), False)
sketch5.addGeometry(Part.LineSegment(V(-18.353992, 11.115339, 0), V(-16.26912, 9.852722, 0)), False)
sketch5.addGeometry(Part.ArcOfCircle(Part.Circle(V(0, 0, 0), V(0, 0, 1), 19.02), math.radians(148.800533), math.radians(172.972821)), False)
sketch5.addGeometry(Part.LineSegment(V(-18.877126, 2.32691, 0), V(-21.296212, 2.625101, 0)), False)
sketch5.addGeometry(Part.ArcOfCircle(Part.Circle(V(0, 0, 0), V(0, 0, 1), 21.457395), math.radians(148.800533), math.radians(172.972821)), False)
sketch5.addGeometry(Part.LineSegment(V(-11.115339, -18.353992, 0), V(-9.852722, -16.26912, 0)), False)
sketch5.addGeometry(Part.ArcOfCircle(Part.Circle(V(0, 0, 0), V(0, 0, 1), 19.02), math.radians(-121.199467), math.radians(-97.027179)), False)
sketch5.addGeometry(Part.LineSegment(V(-2.32691, -18.877126, 0), V(-2.625101, -21.296212, 0)), False)
sketch5.addGeometry(Part.ArcOfCircle(Part.Circle(V(0, 0, 0), V(0, 0, 1), 21.457395), math.radians(-121.199467), math.radians(-97.027179)), False)
sketch5.addConstraint(Sketcher.Constraint("Coincident", 0, 2, 1, 1))
sketch5.addConstraint(Sketcher.Constraint("Coincident", 1, 2, 2, 1))
sketch5.addConstraint(Sketcher.Constraint("Coincident", 2, 2, 3, 2))
sketch5.addConstraint(Sketcher.Constraint("Coincident", 3, 1, 0, 1))
sketch5.addConstraint(Sketcher.Constraint("Coincident", 4, 2, 5, 1))
sketch5.addConstraint(Sketcher.Constraint("Coincident", 5, 2, 6, 1))
sketch5.addConstraint(Sketcher.Constraint("Coincident", 6, 2, 7, 2))
sketch5.addConstraint(Sketcher.Constraint("Coincident", 7, 1, 4, 1))
sketch5.addConstraint(Sketcher.Constraint("Coincident", 8, 2, 9, 1))
sketch5.addConstraint(Sketcher.Constraint("Coincident", 9, 2, 10, 1))
sketch5.addConstraint(Sketcher.Constraint("Coincident", 10, 2, 11, 2))
sketch5.addConstraint(Sketcher.Constraint("Coincident", 11, 1, 8, 1))
sketch5.addConstraint(Sketcher.Constraint("Coincident", 12, 2, 13, 1))
sketch5.addConstraint(Sketcher.Constraint("Coincident", 13, 2, 14, 1))
sketch5.addConstraint(Sketcher.Constraint("Coincident", 14, 2, 15, 2))
sketch5.addConstraint(Sketcher.Constraint("Coincident", 15, 1, 12, 1))
sketch5.addConstraint(Sketcher.Constraint("Coincident", 1, 3, -1, 1))
sketch5.addConstraint(Sketcher.Constraint("Coincident", 3, 3, -1, 1))
sketch5.addConstraint(Sketcher.Constraint("Coincident", 5, 3, -1, 1))
sketch5.addConstraint(Sketcher.Constraint("Coincident", 7, 3, -1, 1))
sketch5.addConstraint(Sketcher.Constraint("Coincident", 9, 3, -1, 1))
sketch5.addConstraint(Sketcher.Constraint("Coincident", 11, 3, -1, 1))
sketch5.addConstraint(Sketcher.Constraint("Coincident", 13, 3, -1, 1))
sketch5.addConstraint(Sketcher.Constraint("Coincident", 15, 3, -1, 1))
sketch5.addConstraint(Sketcher.Constraint("Equal", 1, 5))
sketch5.addConstraint(Sketcher.Constraint("Equal", 3, 7))
sketch5.addConstraint(Sketcher.Constraint("Equal", 5, 9))
sketch5.addConstraint(Sketcher.Constraint("Equal", 7, 11))
sketch5.addConstraint(Sketcher.Constraint("Equal", 9, 13))
sketch5.addConstraint(Sketcher.Constraint("Equal", 11, 15))
sketch5.addConstraint(Sketcher.Constraint("Perpendicular", 0, 4))
sketch5.addConstraint(Sketcher.Constraint("Perpendicular", 2, 6))
sketch5.addConstraint(Sketcher.Constraint("Perpendicular", 4, 8))
sketch5.addConstraint(Sketcher.Constraint("Perpendicular", 6, 10))
sketch5.addConstraint(Sketcher.Constraint("Perpendicular", 8, 12))
sketch5.addConstraint(Sketcher.Constraint("Perpendicular", 10, 14))
sketch5.addConstraint(Sketcher.Constraint("Radius", 1, 19.02))
sketch5.addConstraint(Sketcher.Constraint("Radius", 3, 21.457395))
sketch5.addConstraint(Sketcher.Constraint("DistanceY", 2, 2, -1, 1, 2.625101))
sketch5.addConstraint(Sketcher.Constraint("DistanceX", -1, 1, 6, 2, 2.625101))
sketch5.addConstraint(Sketcher.Constraint("DistanceY", -1, 1, 10, 2, 2.625101))
sketch5.addConstraint(Sketcher.Constraint("DistanceX", 14, 2, -1, 1, 2.625101))
sketch5.addConstraint(Sketcher.Constraint("DistanceX", -1, 1, 0, 2, 16.26912))
sketch5.addConstraint(Sketcher.Constraint("DistanceY", 1, 2, -1, 1, 2.32691))
sketch5.addConstraint(Sketcher.Constraint("DistanceX", -1, 1, 3, 1, 18.353992))
sketch5.addConstraint(Sketcher.Constraint("DistanceY", -1, 1, 4, 2, 16.26912))
sketch5.addConstraint(Sketcher.Constraint("DistanceX", 8, 2, -1, 1, 16.26912))
sketch5.addConstraint(Sketcher.Constraint("DistanceY", 12, 2, -1, 1, 16.26912))
sketch5.setExpression("Constraints[36]", "Params.sketch5_radius")
pad3 = body.newObject("PartDesign::Pad", "Pad002")
pad3.Profile = sketch5
pad3.setExpression("Length", "Params.pad3_length")

doc.recompute()
